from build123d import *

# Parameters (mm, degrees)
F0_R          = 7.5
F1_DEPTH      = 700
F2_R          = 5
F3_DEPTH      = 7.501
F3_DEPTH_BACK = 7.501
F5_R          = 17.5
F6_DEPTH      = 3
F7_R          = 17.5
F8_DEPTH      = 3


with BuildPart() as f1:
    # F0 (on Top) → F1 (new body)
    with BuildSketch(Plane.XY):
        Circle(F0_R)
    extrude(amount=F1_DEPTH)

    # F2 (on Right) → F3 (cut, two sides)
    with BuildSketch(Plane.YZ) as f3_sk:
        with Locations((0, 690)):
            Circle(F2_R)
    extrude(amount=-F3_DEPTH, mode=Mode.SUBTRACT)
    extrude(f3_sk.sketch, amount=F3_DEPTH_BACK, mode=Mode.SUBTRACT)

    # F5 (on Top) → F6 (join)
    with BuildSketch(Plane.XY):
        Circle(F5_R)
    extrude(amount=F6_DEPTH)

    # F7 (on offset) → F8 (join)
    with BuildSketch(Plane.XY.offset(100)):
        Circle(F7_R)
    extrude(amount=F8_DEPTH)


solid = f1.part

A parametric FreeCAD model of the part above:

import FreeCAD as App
import Part
import Sketcher
from FreeCAD import Vector
Q = App.Units.Quantity

doc = App.newDocument("Part")
params = doc.addObject("Spreadsheet::Sheet", "Params")
for row, (alias, value) in enumerate([
    ("sketch1_diameter", "15 mm"),
    ("pad1_length", "700 mm"),
    ("sketch2_diameter", "10 mm"),
    ("sketch3_diameter", "35 mm"),
    ("pad2_length", "3 mm"),
    ("sketch4_diameter", "35 mm"),
    ("pad3_length", "3 mm"),
], start=1):
    params.set(f"A{row}", alias)
    params.set(f"B{row}", "=" + value)
    params.setAlias(f"B{row}", alias)

body = doc.addObject("PartDesign::Body", "Body")

sketch1 = body.newObject("Sketcher::SketchObject", "Sketch")
sketch1.AttachmentSupport = (doc.getObject("XY_Plane"), [""])
sketch1.MapMode = "FlatFace"
sketch1.addGeometry(Part.Circle(Vector(0, 0, 0), Vector(0, 0, 1), 8), False)
sketch1.addConstraint(Sketcher.Constraint("Coincident", 0, 3, -1, 1))
sketch1.addConstraint(Sketcher.Constraint("Diameter", 0, Q("15 mm")))
sketch1.setExpression("Constraints[1]", "Params.sketch1_diameter")
pad1 = body.newObject("PartDesign::Pad", "Pad")
pad1.Profile = sketch1
pad1.setExpression("Length", "Params.pad1_length")

sketch2 = body.newObject("Sketcher::SketchObject", "Sketch001")
sketch2.AttachmentSupport = (doc.getObject("YZ_Plane"), [""])
sketch2.MapMode = "FlatFace"
sketch2.addGeometry(Part.Circle(Vector(0, 690, 0), Vector(0, 0, 1), 5), False)
sketch2.addConstraint(Sketcher.Constraint("PointOnObject", 0, 3, -2))
sketch2.addConstraint(Sketcher.Constraint("Diameter", 0, Q("10 mm")))
sketch2.addConstraint(Sketcher.Constraint("DistanceY", -1, 1, 0, 3, Q("690 mm")))
sketch2.setExpression("Constraints[1]", "Params.sketch2_diameter")
pocket1 = body.newObject("PartDesign::Pocket", "Pocket")
pocket1.Profile = sketch2
pocket1.Type = "ThroughAll"
pocket1.Midplane = True

sketch3 = body.newObject("Sketcher::SketchObject", "Sketch002")
sketch3.AttachmentSupport = (doc.getObject("XY_Plane"), [""])
sketch3.MapMode = "FlatFace"
sketch3.addGeometry(Part.Circle(Vector(0, 0, 0), Vector(0, 0, 1), 18), False)
sketch3.addConstraint(Sketcher.Constraint("Coincident", 0, 3, -1, 1))
sketch3.addConstraint(Sketcher.Constraint("Diameter", 0, Q("35 mm")))
sketch3.setExpression("Constraints[1]", "Params.sketch3_diameter")
pad2 = body.newObject("PartDesign::Pad", "Pad001")
pad2.Profile = sketch3
pad2.setExpression("Length", "Params.pad2_length")

sketch4 = body.newObject("Sketcher::SketchObject", "Sketch003")
sketch4.AttachmentSupport = (doc.getObject("XY_Plane"), [""])
sketch4.MapMode = "FlatFace"
sketch4.AttachmentOffset = App.Placement(Vector(0, 0, 100), App.Rotation())
sketch4.addGeometry(Part.Circle(Vector(0, 0, 0), Vector(0, 0, 1), 18), False)
sketch4.addConstraint(Sketcher.Constraint("Coincident", 0, 3, -1, 1))
sketch4.addConstraint(Sketcher.Constraint("Diameter", 0, Q("35 mm")))
sketch4.setExpression("Constraints[1]", "Params.sketch4_diameter")
pad3 = body.newObject("PartDesign::Pad", "Pad002")
pad3.Profile = sketch4
pad3.setExpression("Length", "Params.pad3_length")

doc.recompute()
